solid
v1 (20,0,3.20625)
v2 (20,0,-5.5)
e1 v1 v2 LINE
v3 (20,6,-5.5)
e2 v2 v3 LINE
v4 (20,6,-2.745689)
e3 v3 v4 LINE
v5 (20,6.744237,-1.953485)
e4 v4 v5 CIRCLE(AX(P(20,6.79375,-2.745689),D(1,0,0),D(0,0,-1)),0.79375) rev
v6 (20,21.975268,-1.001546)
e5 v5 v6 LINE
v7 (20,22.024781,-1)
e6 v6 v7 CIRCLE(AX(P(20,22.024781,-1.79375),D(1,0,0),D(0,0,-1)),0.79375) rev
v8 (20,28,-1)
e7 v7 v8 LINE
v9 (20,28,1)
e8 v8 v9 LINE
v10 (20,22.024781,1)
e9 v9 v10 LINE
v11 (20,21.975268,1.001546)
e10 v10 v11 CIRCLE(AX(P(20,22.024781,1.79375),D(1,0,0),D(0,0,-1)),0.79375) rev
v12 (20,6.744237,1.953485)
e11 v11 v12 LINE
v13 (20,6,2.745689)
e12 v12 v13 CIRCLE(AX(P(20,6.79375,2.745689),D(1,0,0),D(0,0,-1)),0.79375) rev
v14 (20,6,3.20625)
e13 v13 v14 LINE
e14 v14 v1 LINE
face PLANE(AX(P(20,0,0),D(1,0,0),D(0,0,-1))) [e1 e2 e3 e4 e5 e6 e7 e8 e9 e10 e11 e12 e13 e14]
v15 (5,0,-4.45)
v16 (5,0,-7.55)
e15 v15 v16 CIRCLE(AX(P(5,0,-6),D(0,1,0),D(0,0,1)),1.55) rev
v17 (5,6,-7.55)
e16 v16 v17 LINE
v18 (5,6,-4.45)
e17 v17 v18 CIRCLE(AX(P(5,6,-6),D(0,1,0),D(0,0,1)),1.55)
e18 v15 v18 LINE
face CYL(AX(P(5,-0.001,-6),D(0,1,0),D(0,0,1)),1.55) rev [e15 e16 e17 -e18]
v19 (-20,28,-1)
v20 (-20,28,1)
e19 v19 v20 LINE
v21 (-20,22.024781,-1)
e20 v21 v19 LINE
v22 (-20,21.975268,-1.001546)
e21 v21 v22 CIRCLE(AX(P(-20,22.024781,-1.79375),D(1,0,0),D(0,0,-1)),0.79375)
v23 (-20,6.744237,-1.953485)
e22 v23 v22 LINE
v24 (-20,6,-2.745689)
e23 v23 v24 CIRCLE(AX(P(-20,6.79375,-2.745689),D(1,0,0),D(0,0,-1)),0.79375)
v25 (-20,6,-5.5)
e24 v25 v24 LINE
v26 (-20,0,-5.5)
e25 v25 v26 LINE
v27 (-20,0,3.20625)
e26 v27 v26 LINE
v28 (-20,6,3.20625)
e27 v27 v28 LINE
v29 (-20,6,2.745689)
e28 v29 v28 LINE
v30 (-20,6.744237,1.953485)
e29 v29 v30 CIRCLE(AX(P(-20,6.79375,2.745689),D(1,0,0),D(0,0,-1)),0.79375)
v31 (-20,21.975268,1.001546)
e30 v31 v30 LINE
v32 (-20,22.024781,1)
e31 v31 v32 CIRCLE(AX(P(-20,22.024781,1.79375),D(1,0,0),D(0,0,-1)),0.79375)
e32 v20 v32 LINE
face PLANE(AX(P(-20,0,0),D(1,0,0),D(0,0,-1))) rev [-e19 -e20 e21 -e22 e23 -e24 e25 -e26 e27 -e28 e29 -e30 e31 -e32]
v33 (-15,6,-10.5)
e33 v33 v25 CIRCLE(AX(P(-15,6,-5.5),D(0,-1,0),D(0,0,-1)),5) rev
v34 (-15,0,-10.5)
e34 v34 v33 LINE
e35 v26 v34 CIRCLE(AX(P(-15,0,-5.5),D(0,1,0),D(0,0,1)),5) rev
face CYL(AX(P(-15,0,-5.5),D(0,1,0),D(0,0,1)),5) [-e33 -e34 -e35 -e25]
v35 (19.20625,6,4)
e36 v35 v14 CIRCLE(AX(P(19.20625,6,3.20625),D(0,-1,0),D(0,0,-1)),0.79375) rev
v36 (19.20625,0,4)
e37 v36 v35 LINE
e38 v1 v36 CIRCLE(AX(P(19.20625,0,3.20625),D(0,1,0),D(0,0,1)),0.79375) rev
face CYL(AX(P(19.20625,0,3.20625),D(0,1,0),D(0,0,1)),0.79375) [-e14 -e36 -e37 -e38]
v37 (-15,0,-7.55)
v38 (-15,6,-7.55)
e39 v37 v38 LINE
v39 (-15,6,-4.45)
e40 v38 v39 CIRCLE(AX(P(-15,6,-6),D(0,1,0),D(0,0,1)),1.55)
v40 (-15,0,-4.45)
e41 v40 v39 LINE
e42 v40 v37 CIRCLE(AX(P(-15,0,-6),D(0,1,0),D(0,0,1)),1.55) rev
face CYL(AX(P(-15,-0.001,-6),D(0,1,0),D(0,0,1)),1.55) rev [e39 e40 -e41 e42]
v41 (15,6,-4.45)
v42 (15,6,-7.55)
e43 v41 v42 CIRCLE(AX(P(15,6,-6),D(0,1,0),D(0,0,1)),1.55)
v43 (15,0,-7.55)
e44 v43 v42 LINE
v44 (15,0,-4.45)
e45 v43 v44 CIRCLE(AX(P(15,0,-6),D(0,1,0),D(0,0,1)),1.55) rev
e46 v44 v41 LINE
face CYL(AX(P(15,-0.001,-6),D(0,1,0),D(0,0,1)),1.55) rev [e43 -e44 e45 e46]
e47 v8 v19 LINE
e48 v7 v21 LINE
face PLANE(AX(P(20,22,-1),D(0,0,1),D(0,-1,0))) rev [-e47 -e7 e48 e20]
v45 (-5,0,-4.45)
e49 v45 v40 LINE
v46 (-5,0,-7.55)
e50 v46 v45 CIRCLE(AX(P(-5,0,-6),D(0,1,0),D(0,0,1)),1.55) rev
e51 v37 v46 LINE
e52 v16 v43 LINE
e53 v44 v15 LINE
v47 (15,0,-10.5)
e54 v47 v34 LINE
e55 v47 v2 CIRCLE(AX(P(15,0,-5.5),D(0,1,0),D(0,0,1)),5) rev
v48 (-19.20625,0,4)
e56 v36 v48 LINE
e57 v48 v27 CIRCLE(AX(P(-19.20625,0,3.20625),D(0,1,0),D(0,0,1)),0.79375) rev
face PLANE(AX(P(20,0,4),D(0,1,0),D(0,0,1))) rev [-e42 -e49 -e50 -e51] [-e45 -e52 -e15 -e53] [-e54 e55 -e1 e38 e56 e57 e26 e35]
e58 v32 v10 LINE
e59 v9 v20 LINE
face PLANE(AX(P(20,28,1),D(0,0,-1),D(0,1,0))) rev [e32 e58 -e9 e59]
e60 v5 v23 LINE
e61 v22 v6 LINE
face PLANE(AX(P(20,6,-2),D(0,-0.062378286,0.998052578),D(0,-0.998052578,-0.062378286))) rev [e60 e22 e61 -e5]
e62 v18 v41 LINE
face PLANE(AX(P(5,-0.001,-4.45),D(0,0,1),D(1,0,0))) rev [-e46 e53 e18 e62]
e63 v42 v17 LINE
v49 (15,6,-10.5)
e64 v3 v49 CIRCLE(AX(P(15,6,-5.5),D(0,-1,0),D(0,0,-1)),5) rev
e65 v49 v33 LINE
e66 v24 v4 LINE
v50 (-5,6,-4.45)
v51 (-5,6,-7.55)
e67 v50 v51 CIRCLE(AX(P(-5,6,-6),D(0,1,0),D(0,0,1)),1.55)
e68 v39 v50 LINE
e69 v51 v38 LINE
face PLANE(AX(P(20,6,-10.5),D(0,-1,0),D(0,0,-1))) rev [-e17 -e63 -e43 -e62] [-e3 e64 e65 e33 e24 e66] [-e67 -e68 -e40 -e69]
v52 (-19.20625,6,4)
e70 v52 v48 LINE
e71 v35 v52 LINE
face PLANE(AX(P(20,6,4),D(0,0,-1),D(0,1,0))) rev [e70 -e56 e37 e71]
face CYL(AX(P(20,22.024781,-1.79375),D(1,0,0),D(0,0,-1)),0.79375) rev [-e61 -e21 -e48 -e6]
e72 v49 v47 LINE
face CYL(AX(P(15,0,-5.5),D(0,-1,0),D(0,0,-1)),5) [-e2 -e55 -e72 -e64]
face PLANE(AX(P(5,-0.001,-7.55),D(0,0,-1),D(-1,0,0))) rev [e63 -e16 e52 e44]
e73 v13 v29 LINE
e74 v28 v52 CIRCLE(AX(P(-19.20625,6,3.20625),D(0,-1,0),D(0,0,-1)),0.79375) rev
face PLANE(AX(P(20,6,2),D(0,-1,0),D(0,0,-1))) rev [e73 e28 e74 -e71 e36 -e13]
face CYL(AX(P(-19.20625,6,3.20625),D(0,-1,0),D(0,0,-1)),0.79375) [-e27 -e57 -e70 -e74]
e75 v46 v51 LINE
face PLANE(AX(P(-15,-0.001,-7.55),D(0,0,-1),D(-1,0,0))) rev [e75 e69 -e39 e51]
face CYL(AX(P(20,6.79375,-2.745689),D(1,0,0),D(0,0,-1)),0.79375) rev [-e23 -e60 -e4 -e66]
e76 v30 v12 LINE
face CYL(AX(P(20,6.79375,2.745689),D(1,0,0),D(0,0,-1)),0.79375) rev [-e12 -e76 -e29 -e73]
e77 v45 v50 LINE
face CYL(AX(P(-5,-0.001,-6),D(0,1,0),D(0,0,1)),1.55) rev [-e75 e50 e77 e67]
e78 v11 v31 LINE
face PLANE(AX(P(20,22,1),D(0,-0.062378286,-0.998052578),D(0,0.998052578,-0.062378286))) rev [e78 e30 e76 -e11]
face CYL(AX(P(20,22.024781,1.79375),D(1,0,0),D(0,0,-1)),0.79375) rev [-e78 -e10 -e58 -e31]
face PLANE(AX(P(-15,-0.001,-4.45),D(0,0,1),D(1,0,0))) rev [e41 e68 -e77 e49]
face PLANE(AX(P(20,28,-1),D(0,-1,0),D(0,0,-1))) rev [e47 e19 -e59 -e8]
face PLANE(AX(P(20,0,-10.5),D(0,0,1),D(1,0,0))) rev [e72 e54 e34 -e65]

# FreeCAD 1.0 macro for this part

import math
import FreeCAD as App
import Part
import Sketcher
Q = App.Units.Quantity


def edges_at(feature, points):
    """Names of the edges that pass closest to the given points."""
    edges = feature.Shape.Edges
    near = lambda p: min(range(len(edges)), key=lambda i: edges[i].distToShape(Part.Vertex(*p))[0])
    return sorted({f"Edge{near(p) + 1}" for p in points})


def add_polygon(sketch, points):
    """Adds a closed chain of lines whose ends are joined by coincident constraints."""
    first, n = sketch.GeometryCount, len(points)
    for a, b in zip(points, points[1:] + points[:1]):
        sketch.addGeometry(Part.LineSegment(App.Vector(*a, 0), App.Vector(*b, 0)), False)
    for i in range(n):
        sketch.addConstraint(Sketcher.Constraint("Coincident", first + i, 2, first + (i + 1) % n, 1))

doc = App.newDocument("Part")
body = doc.addObject("PartDesign::Body", "Body")

sketch1 = body.newObject("Sketcher::SketchObject", "Sketch")
sketch1.AttachmentSupport = (doc.getObject("YZ_Plane"), [""])
sketch1.MapMode = "FlatFace"
add_polygon(sketch1, [(0, 4), (0, -10.5), (6, -10.5), (6, -2), (22, -1), (28, -1), (28, 1), (22, 1), (6, 2), (6, 4)])
sketch1.addConstraint([
    Sketcher.Constraint("Vertical", 0),
    Sketcher.Constraint("Horizontal", 1),
    Sketcher.Constraint("Vertical", 2),
    Sketcher.Constraint("Horizontal", 4),
    Sketcher.Constraint("Vertical", 5),
    Sketcher.Constraint("Horizontal", 6),
    Sketcher.Constraint("Vertical", 8),
    Sketcher.Constraint("Horizontal", 9),
    Sketcher.Constraint("Symmetric", 3, 2, 6, 2, -1),
    Sketcher.Constraint("Symmetric", 2, 2, 7, 2, -1),
    Sketcher.Constraint("PointOnObject", 0, 2, -2),
    Sketcher.Constraint("Equal", 1, 4),
    Sketcher.Constraint("Equal", 5, 8),
    Sketcher.Constraint("DistanceX", 1, 1, 1, 2, Q("6 mm")),
    Sketcher.Constraint("DistanceY", 5, 1, 5, 2, Q("2 mm")),
    Sketcher.Constraint("DistanceY", 0, 2, 0, 1, Q("14.5 mm")),
    Sketcher.Constraint("DistanceY", 2, 1, 2, 2, Q("8.5 mm")),
    Sketcher.Constraint("DistanceX", -1, 1, 3, 2, Q("22 mm")),
])
pad1 = body.newObject("PartDesign::Pad", "Pad")
pad1.Profile = sketch1
pad1.Length = 40
pad1.Midplane = True

sketch2 = body.newObject("Sketcher::SketchObject", "Sketch001")
sketch2.AttachmentSupport = (doc.getObject("XZ_Plane"), [""])
sketch2.MapMode = "FlatFace"
sketch2.AttachmentOffset = App.Placement(App.Vector(0, 0, -6), App.Rotation())
sketch2.addGeometry([
    Part.LineSegment(App.Vector(-5, -7.5, 0), App.Vector(-15, -7.5, 0)),
    Part.ArcOfCircle(Part.Circle(App.Vector(-15, -6, 0), App.Vector(0, 0, 1), 1.6), math.radians(90), math.radians(270)),
    Part.LineSegment(App.Vector(-15, -4.5, 0), App.Vector(-5, -4.5, 0)),
    Part.ArcOfCircle(Part.Circle(App.Vector(-5, -6, 0), App.Vector(0, 0, 1), 1.6), math.radians(-90), math.radians(90)),
], False)
sketch2.addConstraint([
    Sketcher.Constraint("Tangent", 0, 2, 1, 2),
    Sketcher.Constraint("Tangent", 1, 1, 2, 1),
    Sketcher.Constraint("Tangent", 2, 2, 3, 2),
    Sketcher.Constraint("Tangent", 3, 1, 0, 1),
    Sketcher.Constraint("Horizontal", 0),
    Sketcher.Constraint("Horizontal", 2),
    Sketcher.Constraint("DistanceX", 0, 2, 0, 1, Q("10 mm")),
    Sketcher.Constraint("Radius", 1, Q("1.55 mm")),
    Sketcher.Constraint("DistanceX", 1, 3, -1, 1, Q("15 mm")),
    Sketcher.Constraint("DistanceY", 1, 3, -1, 1, Q("6 mm")),
])
pocket1 = body.newObject("PartDesign::Pocket", "Pocket")
pocket1.Profile = sketch2
pocket1.Type = "UpToFirst"
pocket1.Reversed = True

sketch3 = body.newObject("Sketcher::SketchObject", "Sketch002")
sketch3.AttachmentSupport = (doc.getObject("XZ_Plane"), [""])
sketch3.MapMode = "FlatFace"
sketch3.AttachmentOffset = App.Placement(App.Vector(0, 0, -6), App.Rotation())
sketch3.addGeometry([
    Part.LineSegment(App.Vector(15, -7.5, 0), App.Vector(5, -7.5, 0)),
    Part.ArcOfCircle(Part.Circle(App.Vector(5, -6, 0), App.Vector(0, 0, 1), 1.6), math.radians(90), math.radians(270)),
    Part.LineSegment(App.Vector(5, -4.5, 0), App.Vector(15, -4.5, 0)),
    Part.ArcOfCircle(Part.Circle(App.Vector(15, -6, 0), App.Vector(0, 0, 1), 1.6), math.radians(-90), math.radians(90)),
], False)
sketch3.addConstraint([
    Sketcher.Constraint("Tangent", 0, 2, 1, 2),
    Sketcher.Constraint("Tangent", 1, 1, 2, 1),
    Sketcher.Constraint("Tangent", 2, 2, 3, 2),
    Sketcher.Constraint("Tangent", 3, 1, 0, 1),
    Sketcher.Constraint("Horizontal", 0),
    Sketcher.Constraint("Horizontal", 2),
    Sketcher.Constraint("DistanceX", 0, 2, 0, 1, Q("10 mm")),
    Sketcher.Constraint("Radius", 1, Q("1.55 mm")),
    Sketcher.Constraint("DistanceX", -1, 1, 1, 3, Q("5 mm")),
    Sketcher.Constraint("DistanceY", 1, 3, -1, 1, Q("6 mm")),
])
pocket2 = body.newObject("PartDesign::Pocket", "Pocket001")
pocket2.Profile = sketch3
pocket2.Type = "UpToFirst"
pocket2.Reversed = True
doc.recompute()

fillet = body.newObject("PartDesign::Fillet", "Fillet")
fillet.Base = (pocket2, edges_at(pocket2, [(20, 3, -10.5), (-20, 3, -10.5)]))
fillet.Radius = 5
doc.recompute()

fillet2 = body.newObject("PartDesign::Fillet", "Fillet001")
fillet2.Base = (fillet, edges_at(fillet, [
    (-20, 3, 4),
    (0, 6, 2),
    (0, 22, 1),
    (0, 22, -1),
    (0, 6, -2),
    (20, 3, 4),
]))
fillet2.Radius = 0.79375

doc.recompute()
